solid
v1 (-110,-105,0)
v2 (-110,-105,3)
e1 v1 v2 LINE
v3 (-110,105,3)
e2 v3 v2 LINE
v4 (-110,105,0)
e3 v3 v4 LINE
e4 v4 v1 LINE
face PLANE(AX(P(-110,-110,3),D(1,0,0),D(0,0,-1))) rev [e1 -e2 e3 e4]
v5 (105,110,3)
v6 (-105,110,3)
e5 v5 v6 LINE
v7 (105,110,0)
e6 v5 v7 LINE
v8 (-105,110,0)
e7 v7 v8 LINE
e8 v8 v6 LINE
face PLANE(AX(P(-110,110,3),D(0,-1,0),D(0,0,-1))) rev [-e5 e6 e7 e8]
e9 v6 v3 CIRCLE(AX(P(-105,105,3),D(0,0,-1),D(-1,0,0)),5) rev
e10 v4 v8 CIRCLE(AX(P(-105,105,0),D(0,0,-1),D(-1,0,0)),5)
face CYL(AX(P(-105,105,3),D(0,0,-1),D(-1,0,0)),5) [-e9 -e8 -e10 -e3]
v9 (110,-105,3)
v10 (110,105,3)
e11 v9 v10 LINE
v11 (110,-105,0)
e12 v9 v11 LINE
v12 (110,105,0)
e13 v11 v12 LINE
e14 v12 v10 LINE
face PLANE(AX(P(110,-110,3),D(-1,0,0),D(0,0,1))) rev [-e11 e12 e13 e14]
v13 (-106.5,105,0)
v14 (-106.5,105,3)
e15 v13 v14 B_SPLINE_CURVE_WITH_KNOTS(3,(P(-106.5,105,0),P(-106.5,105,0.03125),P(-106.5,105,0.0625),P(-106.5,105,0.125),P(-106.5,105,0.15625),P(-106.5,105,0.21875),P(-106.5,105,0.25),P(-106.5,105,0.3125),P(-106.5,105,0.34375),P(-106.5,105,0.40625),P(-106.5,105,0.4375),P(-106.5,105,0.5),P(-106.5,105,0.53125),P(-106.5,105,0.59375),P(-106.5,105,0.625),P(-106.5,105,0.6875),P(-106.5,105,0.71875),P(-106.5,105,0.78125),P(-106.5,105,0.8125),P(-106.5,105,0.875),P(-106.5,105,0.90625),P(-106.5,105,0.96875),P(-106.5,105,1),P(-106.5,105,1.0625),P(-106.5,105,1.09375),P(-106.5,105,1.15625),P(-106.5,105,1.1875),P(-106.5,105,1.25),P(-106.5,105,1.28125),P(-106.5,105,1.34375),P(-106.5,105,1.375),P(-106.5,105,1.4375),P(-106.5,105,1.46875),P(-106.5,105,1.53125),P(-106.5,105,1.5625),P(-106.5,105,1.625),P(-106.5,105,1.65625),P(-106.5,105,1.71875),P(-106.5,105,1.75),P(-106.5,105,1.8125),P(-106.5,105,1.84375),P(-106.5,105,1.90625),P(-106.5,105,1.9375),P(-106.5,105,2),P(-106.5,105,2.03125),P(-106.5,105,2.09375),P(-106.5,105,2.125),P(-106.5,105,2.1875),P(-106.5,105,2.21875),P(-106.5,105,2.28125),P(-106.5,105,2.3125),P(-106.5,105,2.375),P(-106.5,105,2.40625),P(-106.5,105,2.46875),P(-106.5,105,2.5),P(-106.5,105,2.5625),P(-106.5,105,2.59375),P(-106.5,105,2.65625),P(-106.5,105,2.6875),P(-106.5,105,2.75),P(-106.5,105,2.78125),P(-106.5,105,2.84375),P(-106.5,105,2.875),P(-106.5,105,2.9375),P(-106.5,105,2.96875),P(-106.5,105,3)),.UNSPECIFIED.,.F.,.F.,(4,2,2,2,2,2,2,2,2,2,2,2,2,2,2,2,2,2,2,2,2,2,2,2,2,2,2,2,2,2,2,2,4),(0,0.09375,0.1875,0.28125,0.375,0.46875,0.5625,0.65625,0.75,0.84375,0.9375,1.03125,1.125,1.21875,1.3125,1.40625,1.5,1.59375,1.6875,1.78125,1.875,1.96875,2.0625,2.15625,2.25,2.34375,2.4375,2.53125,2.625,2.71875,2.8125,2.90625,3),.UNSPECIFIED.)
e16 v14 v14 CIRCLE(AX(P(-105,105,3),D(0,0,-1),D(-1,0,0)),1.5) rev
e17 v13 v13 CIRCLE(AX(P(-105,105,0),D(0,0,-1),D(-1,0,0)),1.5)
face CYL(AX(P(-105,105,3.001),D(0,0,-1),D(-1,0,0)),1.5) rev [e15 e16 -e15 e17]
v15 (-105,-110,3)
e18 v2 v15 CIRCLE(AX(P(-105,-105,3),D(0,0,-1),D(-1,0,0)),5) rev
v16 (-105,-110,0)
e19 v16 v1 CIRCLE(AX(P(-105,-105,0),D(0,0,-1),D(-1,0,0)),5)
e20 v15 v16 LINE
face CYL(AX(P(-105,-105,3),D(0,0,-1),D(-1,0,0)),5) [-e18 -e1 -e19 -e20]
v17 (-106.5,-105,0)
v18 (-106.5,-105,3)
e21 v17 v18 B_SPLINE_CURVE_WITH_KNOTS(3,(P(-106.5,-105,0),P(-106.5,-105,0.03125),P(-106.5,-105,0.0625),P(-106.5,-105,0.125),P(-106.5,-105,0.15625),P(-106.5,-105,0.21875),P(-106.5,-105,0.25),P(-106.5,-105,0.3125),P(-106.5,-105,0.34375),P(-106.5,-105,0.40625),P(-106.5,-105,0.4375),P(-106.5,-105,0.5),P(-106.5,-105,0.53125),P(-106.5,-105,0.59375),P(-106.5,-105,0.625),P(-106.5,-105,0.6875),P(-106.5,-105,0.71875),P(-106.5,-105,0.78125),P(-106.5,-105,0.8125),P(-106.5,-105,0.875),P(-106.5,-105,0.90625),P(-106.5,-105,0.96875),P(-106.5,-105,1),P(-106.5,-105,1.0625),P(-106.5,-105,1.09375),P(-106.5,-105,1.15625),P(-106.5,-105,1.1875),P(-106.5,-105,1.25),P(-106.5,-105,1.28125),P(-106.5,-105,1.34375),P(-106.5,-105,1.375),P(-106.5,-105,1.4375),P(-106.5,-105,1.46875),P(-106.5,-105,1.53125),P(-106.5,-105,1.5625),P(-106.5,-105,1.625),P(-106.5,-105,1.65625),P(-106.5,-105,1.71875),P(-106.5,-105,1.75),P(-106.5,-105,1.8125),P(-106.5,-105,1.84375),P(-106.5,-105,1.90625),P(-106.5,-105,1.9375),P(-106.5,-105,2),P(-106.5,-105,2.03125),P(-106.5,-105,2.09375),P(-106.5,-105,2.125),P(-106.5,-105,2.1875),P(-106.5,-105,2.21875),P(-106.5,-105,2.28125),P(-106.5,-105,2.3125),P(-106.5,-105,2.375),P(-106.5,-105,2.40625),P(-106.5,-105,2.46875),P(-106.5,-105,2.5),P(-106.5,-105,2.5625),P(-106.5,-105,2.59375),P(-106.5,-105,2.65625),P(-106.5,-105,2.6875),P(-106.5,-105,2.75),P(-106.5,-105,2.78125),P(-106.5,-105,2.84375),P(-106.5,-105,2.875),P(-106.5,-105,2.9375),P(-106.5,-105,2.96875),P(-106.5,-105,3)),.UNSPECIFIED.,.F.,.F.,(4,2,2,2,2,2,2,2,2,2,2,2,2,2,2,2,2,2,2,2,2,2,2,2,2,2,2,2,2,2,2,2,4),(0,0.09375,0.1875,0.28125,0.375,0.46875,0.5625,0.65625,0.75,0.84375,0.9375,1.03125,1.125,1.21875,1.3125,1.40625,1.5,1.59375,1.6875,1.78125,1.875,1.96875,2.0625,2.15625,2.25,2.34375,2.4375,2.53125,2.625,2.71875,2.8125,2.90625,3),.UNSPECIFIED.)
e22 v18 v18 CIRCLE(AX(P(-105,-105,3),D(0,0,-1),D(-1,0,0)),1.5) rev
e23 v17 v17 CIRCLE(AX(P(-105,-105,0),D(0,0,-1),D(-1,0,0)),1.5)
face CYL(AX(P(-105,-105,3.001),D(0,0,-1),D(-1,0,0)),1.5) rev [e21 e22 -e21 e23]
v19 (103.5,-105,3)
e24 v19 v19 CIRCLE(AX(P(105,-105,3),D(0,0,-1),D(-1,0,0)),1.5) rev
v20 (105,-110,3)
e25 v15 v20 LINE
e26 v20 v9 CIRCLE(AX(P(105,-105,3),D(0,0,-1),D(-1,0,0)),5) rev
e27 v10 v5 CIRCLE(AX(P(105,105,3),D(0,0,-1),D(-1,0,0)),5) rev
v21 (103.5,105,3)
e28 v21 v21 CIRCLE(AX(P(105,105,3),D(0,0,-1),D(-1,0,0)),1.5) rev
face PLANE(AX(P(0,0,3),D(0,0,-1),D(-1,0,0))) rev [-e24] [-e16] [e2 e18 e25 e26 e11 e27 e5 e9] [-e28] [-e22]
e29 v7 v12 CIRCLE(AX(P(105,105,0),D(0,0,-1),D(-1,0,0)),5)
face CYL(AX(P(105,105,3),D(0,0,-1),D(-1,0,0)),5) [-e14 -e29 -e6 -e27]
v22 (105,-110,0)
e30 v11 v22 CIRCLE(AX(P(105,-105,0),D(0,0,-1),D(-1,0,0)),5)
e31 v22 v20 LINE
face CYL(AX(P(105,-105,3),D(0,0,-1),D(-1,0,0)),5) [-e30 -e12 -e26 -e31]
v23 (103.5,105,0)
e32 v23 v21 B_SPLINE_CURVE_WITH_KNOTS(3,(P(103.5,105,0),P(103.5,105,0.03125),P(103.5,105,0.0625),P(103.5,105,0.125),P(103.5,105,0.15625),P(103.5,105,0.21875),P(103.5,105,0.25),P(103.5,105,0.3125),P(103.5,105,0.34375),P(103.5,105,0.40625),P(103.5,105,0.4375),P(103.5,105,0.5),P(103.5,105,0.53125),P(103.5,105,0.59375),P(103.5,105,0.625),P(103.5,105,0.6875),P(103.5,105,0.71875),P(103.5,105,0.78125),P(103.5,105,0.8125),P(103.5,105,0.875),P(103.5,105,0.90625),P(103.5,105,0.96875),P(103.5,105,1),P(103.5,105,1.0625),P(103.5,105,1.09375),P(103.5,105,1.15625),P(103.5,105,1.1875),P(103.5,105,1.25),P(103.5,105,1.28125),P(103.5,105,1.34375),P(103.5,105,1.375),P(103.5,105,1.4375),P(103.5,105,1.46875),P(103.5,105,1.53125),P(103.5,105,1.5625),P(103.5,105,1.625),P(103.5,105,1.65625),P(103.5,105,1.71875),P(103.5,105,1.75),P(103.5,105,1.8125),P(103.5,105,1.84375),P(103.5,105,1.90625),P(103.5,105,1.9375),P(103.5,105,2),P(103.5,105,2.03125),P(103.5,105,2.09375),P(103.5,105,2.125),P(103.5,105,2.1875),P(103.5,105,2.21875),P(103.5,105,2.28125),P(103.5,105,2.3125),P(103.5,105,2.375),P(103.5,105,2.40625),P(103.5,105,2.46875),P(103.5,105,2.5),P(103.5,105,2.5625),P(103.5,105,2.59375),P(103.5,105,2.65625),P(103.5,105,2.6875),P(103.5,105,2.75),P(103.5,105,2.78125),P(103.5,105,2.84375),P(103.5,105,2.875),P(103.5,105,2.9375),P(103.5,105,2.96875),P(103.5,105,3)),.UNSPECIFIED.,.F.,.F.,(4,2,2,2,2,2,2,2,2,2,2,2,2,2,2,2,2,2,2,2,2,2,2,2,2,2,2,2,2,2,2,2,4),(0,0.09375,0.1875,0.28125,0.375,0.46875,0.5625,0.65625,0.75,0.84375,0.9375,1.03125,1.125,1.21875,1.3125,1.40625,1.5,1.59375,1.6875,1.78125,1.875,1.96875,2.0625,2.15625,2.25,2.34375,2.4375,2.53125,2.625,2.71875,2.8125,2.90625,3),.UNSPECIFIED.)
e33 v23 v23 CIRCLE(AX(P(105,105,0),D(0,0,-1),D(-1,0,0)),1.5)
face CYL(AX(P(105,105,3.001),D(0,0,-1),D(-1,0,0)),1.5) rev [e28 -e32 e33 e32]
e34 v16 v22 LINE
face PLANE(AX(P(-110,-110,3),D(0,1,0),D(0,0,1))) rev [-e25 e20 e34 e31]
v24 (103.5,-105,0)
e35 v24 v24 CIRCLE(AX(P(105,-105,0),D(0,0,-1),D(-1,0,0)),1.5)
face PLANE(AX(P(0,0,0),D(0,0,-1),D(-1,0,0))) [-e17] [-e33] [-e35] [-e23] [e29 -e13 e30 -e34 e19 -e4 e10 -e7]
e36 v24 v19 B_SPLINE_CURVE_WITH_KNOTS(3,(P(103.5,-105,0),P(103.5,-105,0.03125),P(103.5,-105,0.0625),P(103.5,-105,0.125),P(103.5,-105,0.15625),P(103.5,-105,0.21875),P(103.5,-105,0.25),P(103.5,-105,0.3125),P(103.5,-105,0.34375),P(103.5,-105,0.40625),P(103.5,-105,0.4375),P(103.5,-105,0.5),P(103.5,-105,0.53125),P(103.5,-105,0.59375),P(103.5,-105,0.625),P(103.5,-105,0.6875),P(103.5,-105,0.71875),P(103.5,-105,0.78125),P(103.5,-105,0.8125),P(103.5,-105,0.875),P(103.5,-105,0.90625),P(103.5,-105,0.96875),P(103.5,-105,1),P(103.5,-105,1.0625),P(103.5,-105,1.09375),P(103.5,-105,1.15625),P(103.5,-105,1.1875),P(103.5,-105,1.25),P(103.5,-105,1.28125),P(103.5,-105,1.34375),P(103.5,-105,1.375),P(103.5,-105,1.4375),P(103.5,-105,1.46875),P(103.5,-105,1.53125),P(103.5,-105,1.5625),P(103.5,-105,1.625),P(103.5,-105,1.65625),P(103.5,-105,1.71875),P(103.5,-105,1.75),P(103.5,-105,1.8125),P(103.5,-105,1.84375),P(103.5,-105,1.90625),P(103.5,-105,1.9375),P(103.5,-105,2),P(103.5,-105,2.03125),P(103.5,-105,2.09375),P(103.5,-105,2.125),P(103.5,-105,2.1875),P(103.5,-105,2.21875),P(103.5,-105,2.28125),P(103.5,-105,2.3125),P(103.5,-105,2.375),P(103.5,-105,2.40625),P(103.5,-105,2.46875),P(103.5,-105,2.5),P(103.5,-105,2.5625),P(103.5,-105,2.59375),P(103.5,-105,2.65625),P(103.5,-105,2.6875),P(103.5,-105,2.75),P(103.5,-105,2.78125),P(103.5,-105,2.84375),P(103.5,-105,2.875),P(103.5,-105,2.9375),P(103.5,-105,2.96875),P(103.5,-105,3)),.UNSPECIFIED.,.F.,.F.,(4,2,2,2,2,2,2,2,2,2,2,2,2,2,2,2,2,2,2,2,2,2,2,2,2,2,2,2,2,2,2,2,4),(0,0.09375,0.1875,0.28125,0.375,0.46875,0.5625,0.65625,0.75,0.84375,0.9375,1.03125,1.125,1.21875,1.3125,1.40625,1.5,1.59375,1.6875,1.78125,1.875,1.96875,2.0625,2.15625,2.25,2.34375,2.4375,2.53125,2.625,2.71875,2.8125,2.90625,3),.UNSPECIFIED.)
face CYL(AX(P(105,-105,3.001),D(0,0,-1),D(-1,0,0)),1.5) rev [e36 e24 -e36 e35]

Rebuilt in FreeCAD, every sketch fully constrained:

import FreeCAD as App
import Part
import Sketcher

V = App.Vector
Q = App.Units.Quantity


def edges_at(feature, points):
    """Names of the edges that pass closest to the given points."""
    edges = feature.Shape.Edges
    near = lambda p: min(range(len(edges)), key=lambda i: edges[i].distToShape(Part.Vertex(*p))[0])
    return sorted({f"Edge{near(p) + 1}" for p in points})

doc = App.newDocument("Part")
body = doc.addObject("PartDesign::Body", "Body")

# Sketch on XY plane
sketch1 = body.newObject("Sketcher::SketchObject", "Sketch")
sketch1.AttachmentSupport = (doc.getObject("XY_Plane"), [""])
sketch1.MapMode = "FlatFace"
sketch1.addGeometry([
    Part.LineSegment(V(-110, 110, 0), V(-110, -110, 0)),
    Part.LineSegment(V(-110, -110, 0), V(110, -110, 0)),
    Part.LineSegment(V(110, -110, 0), V(110, 110, 0)),
    Part.LineSegment(V(110, 110, 0), V(-110, 110, 0)),
], False)
sketch1.addConstraint([
    Sketcher.Constraint("Coincident", 0, 2, 1, 1),
    Sketcher.Constraint("Coincident", 1, 2, 2, 1),
    Sketcher.Constraint("Coincident", 2, 2, 3, 1),
    Sketcher.Constraint("Coincident", 3, 2, 0, 1),
    Sketcher.Constraint("Vertical", 0),
    Sketcher.Constraint("Horizontal", 1),
    Sketcher.Constraint("Vertical", 2),
    Sketcher.Constraint("Horizontal", 3),
    Sketcher.Constraint("Symmetric", 0, 2, 2, 2, -1, 1),
    Sketcher.Constraint("Equal", 3, 0),
    Sketcher.Constraint("DistanceX", 1, 1, 1, 2, Q("220 mm")),
])
pad1 = body.newObject("PartDesign::Pad", "Pad")
pad1.Profile = sketch1
pad1.Length = 3

# Sketch on XY plane
sketch2 = body.newObject("Sketcher::SketchObject", "Sketch001")
sketch2.AttachmentSupport = (doc.getObject("XY_Plane"), [""])
sketch2.MapMode = "FlatFace"
sketch2.addGeometry(Part.Circle(V(-105, -105, 0), V(0, 0, 1), 1.5), False)
sketch2.addConstraint([
    Sketcher.Constraint("Diameter", 0, Q("3 mm")),
    Sketcher.Constraint("DistanceX", 0, 3, -1, 1, Q("105 mm")),
    Sketcher.Constraint("DistanceY", 0, 3, -1, 1, Q("105 mm")),
])
pocket1 = body.newObject("PartDesign::Pocket", "Pocket")
pocket1.Profile = sketch2
pocket1.Type = "UpToFirst"
pocket1.Reversed = True

# Sketch on XY plane
sketch3 = body.newObject("Sketcher::SketchObject", "Sketch002")
sketch3.AttachmentSupport = (doc.getObject("XY_Plane"), [""])
sketch3.MapMode = "FlatFace"
sketch3.addGeometry(Part.Circle(V(-105, 105, 0), V(0, 0, 1), 1.5), False)
sketch3.addConstraint([
    Sketcher.Constraint("Diameter", 0, Q("3 mm")),
    Sketcher.Constraint("DistanceX", 0, 3, -1, 1, Q("105 mm")),
    Sketcher.Constraint("DistanceY", -1, 1, 0, 3, Q("105 mm")),
])
pocket2 = body.newObject("PartDesign::Pocket", "Pocket001")
pocket2.Profile = sketch3
pocket2.Type = "UpToFirst"
pocket2.Reversed = True

# Sketch on XY plane
sketch4 = body.newObject("Sketcher::SketchObject", "Sketch003")
sketch4.AttachmentSupport = (doc.getObject("XY_Plane"), [""])
sketch4.MapMode = "FlatFace"
sketch4.addGeometry(Part.Circle(V(105, 105, 0), V(0, 0, 1), 1.5), False)
sketch4.addConstraint([
    Sketcher.Constraint("Diameter", 0, Q("3 mm")),
    Sketcher.Constraint("DistanceX", -1, 1, 0, 3, Q("105 mm")),
    Sketcher.Constraint("DistanceY", -1, 1, 0, 3, Q("105 mm")),
])
pocket3 = body.newObject("PartDesign::Pocket", "Pocket002")
pocket3.Profile = sketch4
pocket3.Type = "UpToFirst"
pocket3.Reversed = True

# Sketch on XY plane
sketch5 = body.newObject("Sketcher::SketchObject", "Sketch004")
sketch5.AttachmentSupport = (doc.getObject("XY_Plane"), [""])
sketch5.MapMode = "FlatFace"
sketch5.addGeometry(Part.Circle(V(105, -105, 0), V(0, 0, 1), 1.5), False)
sketch5.addConstraint([
    Sketcher.Constraint("Diameter", 0, Q("3 mm")),
    Sketcher.Constraint("DistanceX", -1, 1, 0, 3, Q("105 mm")),
    Sketcher.Constraint("DistanceY", 0, 3, -1, 1, Q("105 mm")),
])
pocket4 = body.newObject("PartDesign::Pocket", "Pocket003")
pocket4.Profile = sketch5
pocket4.Type = "UpToFirst"
pocket4.Reversed = True
doc.recompute()

fillet = body.newObject("PartDesign::Fillet", "Fillet")
fillet.Base = (pocket4, edges_at(pocket4, [
    (110, -110, 1.5),
    (-110, -110, 1.5),
    (-110, 110, 1.5),
    (110, 110, 1.5),
]))
fillet.Radius = 5

doc.recompute()
